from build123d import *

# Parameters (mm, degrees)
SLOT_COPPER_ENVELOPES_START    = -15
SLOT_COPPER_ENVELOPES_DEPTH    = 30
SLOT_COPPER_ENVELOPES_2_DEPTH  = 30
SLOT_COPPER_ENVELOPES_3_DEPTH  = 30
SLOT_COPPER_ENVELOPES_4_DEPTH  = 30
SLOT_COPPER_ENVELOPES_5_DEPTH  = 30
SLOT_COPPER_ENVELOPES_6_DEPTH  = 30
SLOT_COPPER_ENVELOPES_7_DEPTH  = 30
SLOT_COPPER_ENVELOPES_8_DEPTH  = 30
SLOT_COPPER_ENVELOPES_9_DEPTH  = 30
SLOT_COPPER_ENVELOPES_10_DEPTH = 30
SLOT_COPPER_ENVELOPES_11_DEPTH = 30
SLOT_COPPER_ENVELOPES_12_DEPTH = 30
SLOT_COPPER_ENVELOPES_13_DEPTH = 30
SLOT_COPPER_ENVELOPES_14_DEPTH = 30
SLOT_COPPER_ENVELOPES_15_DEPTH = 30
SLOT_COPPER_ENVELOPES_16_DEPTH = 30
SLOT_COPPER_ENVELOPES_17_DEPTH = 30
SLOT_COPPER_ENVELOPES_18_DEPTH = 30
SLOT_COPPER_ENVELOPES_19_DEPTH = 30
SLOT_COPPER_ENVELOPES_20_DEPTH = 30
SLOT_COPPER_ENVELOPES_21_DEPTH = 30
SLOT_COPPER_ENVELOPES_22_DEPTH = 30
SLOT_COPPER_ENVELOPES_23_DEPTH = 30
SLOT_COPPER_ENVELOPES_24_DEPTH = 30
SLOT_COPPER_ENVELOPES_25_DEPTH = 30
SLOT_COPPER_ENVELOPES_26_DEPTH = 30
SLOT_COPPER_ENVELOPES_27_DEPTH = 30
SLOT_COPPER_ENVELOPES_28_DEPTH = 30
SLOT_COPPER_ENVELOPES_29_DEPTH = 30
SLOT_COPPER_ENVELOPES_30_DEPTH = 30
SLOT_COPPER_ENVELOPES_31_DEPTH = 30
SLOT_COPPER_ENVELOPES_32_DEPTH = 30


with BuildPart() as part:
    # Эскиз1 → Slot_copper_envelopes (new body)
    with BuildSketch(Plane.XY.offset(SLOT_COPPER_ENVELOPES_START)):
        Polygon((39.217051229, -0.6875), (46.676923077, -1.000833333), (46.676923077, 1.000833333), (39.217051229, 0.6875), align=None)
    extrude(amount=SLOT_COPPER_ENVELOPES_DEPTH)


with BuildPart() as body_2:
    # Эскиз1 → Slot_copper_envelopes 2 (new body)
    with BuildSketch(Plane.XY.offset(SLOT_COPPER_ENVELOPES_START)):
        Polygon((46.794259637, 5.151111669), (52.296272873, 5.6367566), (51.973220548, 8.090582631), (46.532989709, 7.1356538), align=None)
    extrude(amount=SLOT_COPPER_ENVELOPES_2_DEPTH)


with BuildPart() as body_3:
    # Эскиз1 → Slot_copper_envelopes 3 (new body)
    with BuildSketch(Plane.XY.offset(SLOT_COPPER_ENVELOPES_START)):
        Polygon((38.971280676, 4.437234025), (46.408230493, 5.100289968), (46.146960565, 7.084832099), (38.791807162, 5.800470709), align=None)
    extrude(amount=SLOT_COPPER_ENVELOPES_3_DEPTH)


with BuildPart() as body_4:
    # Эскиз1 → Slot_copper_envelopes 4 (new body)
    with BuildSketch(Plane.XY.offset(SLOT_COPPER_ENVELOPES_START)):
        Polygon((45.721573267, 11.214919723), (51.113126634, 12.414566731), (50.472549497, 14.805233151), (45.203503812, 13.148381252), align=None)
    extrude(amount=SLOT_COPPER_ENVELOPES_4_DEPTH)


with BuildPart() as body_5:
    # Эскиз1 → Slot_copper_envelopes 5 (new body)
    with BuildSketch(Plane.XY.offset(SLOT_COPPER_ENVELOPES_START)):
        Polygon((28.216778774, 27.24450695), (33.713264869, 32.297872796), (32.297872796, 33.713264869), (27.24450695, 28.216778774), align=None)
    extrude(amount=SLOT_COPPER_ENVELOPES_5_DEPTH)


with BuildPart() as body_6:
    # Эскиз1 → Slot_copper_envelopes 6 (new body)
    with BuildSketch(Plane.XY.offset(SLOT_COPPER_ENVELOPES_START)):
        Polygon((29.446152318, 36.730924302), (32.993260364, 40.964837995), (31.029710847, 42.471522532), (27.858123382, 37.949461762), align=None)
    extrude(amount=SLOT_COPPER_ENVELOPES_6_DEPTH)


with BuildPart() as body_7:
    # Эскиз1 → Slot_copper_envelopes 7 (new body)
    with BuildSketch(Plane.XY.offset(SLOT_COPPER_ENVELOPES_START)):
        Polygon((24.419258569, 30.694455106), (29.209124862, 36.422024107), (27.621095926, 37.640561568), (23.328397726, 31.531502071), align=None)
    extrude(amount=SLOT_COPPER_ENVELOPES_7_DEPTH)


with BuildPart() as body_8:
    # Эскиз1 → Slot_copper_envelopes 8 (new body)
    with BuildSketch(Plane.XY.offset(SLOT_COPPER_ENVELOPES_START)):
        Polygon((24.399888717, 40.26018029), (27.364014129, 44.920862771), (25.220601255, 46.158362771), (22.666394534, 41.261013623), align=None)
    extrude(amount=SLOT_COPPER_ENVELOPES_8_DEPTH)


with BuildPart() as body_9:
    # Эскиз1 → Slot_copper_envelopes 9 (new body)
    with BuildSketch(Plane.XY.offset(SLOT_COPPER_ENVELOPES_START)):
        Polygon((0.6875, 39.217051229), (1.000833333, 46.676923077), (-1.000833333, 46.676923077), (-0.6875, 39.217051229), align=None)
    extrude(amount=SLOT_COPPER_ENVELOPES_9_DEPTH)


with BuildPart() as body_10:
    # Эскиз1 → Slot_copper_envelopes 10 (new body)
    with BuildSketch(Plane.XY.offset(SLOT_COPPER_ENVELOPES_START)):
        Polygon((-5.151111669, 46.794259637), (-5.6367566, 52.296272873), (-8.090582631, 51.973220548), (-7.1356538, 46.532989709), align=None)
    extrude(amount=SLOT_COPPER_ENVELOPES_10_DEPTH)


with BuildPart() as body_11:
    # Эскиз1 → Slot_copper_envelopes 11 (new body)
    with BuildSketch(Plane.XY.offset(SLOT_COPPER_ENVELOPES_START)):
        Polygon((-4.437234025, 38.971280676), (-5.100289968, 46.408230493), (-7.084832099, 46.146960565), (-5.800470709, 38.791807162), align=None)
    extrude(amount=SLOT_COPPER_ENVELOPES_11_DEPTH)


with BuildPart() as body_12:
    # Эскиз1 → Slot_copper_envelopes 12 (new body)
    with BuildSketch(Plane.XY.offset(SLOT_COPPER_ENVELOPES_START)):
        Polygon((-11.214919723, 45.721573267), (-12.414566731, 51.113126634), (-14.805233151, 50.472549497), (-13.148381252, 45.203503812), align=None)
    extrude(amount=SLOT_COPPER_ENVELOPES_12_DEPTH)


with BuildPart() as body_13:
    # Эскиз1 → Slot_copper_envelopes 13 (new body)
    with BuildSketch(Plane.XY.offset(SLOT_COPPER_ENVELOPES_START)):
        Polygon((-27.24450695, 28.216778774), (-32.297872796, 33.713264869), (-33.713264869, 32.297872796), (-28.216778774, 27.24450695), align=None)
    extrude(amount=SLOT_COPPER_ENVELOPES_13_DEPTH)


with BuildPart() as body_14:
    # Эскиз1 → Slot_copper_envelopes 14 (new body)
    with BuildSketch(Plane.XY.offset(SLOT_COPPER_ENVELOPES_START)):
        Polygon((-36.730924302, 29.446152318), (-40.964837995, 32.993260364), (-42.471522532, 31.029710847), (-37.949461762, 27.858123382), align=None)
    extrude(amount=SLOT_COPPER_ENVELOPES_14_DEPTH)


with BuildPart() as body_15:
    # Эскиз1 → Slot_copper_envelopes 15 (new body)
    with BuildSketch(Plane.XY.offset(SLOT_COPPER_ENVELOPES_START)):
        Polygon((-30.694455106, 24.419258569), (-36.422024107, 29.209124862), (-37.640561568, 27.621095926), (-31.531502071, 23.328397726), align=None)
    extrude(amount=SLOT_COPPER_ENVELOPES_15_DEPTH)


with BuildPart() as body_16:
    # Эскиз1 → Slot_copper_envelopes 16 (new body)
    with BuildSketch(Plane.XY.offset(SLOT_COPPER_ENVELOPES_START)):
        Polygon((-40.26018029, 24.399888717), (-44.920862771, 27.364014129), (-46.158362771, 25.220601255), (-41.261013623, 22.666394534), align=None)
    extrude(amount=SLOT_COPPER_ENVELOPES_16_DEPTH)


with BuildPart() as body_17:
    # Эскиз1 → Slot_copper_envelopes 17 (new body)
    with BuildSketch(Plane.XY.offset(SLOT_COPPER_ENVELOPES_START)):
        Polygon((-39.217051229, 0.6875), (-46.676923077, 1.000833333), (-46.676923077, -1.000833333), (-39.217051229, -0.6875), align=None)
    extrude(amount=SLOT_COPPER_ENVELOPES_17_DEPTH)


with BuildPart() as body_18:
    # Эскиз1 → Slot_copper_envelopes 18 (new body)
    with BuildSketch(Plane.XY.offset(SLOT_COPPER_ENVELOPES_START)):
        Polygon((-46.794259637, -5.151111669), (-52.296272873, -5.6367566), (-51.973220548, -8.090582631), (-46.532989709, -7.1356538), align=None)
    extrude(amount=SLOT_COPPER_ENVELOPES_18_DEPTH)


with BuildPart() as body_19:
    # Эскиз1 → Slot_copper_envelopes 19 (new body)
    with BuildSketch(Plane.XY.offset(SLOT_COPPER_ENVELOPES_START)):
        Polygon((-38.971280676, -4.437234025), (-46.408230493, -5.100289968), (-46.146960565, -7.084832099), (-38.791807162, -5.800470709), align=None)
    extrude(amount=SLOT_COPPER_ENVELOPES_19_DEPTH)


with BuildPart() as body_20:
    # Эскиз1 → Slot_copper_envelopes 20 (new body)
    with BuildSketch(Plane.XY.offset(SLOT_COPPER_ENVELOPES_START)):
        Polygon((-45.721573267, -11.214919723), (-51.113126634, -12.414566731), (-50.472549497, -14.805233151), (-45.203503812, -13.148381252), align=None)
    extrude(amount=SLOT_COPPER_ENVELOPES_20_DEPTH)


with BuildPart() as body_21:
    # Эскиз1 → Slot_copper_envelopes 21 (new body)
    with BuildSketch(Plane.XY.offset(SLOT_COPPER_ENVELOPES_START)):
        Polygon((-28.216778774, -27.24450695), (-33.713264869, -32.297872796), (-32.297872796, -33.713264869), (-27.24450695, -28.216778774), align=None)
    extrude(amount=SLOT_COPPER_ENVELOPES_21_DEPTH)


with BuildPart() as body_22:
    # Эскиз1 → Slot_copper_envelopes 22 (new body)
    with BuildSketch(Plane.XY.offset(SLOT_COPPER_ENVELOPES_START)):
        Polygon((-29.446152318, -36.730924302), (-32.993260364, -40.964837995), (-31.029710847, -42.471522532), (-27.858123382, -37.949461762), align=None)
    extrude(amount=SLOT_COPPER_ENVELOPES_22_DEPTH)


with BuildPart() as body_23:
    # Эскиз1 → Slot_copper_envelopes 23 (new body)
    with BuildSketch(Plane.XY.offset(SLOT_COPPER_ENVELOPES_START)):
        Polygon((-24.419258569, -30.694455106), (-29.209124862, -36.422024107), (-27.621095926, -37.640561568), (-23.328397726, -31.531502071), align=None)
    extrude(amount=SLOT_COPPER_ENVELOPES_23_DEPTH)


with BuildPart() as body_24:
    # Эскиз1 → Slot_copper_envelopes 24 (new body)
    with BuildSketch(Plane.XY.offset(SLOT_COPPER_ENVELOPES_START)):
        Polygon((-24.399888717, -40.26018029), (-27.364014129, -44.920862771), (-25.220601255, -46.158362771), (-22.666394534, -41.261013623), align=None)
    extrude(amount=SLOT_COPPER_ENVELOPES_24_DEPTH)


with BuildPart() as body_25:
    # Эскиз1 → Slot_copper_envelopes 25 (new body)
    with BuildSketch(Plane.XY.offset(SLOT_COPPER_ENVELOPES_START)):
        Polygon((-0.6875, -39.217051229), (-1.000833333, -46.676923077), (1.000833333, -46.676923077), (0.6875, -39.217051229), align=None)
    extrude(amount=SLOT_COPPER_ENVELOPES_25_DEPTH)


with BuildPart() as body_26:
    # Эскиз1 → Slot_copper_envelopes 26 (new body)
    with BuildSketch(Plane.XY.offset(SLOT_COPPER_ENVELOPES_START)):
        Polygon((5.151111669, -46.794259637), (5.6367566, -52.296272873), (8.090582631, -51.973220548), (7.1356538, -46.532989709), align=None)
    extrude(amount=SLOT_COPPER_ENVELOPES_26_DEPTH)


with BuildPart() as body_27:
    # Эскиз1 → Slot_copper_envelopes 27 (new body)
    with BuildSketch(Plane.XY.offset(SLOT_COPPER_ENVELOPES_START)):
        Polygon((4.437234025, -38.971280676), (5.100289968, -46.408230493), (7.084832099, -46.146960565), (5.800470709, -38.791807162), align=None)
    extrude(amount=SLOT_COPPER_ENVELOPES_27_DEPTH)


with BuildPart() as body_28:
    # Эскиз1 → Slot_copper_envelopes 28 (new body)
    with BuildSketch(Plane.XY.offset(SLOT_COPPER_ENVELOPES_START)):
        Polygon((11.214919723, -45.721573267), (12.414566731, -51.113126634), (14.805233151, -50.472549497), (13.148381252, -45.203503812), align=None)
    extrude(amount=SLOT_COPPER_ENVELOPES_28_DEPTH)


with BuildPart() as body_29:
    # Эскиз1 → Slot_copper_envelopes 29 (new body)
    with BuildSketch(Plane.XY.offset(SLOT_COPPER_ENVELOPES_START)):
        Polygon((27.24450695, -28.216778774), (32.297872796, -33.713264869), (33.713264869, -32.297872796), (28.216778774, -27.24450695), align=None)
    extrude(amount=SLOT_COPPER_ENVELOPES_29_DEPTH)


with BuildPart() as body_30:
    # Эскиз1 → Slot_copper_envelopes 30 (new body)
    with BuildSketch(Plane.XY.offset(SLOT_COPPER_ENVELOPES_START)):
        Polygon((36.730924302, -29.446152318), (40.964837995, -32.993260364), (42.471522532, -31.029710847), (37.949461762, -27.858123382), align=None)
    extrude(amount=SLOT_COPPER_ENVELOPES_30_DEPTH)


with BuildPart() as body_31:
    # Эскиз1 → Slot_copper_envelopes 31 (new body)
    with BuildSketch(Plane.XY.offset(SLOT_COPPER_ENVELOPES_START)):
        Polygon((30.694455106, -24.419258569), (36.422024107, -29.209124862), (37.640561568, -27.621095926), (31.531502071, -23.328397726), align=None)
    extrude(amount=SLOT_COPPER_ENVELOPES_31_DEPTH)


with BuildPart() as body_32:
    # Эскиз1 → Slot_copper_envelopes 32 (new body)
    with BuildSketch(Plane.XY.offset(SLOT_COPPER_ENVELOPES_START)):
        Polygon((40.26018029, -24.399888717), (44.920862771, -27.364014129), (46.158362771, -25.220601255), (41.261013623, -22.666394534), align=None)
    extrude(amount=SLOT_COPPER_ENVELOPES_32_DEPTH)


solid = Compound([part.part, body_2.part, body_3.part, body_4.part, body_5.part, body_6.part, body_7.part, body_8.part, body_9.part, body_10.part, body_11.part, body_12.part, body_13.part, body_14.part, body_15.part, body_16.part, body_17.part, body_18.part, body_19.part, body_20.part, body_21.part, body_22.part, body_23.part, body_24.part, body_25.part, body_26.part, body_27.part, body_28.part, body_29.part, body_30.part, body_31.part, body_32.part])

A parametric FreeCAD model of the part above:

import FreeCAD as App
import Part
import Sketcher

V = App.Vector
Q = App.Units.Quantity

doc = App.newDocument("Part")
body = doc.addObject("PartDesign::Body", "Body")

sketch1 = body.newObject("Sketcher::SketchObject", "Sketch")
sketch1.AttachmentSupport = (doc.getObject("XY_Plane"), [""])
sketch1.MapMode = "FlatFace"
sketch1.AttachmentOffset = App.Placement(V(0, 0, -15), App.Rotation())
sketch1.addGeometry([
    Part.LineSegment(V(39.2, -0.7, 0), V(46.7, -1, 0)),
    Part.LineSegment(V(46.7, -1, 0), V(46.7, 1, 0)),
    Part.LineSegment(V(46.7, 1, 0), V(39.2, 0.7, 0)),
    Part.LineSegment(V(39.2, 0.7, 0), V(39.2, -0.7, 0)),
], False)
sketch1.addConstraint([
    Sketcher.Constraint("Coincident", 0, 2, 1, 1),
    Sketcher.Constraint("Coincident", 1, 2, 2, 1),
    Sketcher.Constraint("Coincident", 2, 2, 3, 1),
    Sketcher.Constraint("Coincident", 3, 2, 0, 1),
    Sketcher.Constraint("Vertical", 1),
    Sketcher.Constraint("Vertical", 3),
    Sketcher.Constraint("Equal", 0, 2),
    Sketcher.Constraint("DistanceY", 3, 2, 3, 1, 1.375),
    Sketcher.Constraint("DistanceY", -1, 1, 2, 2, 0.6875),
    Sketcher.Constraint("Distance", 0, 7.466449),
    Sketcher.Constraint("DistanceY", 1, 1, 1, 2, 2.001667),
    Sketcher.Constraint("DistanceX", -1, 1, 2, 2, 39.217051),
])
pad1 = body.newObject("PartDesign::Pad", "Pad")
pad1.Profile = sketch1
pad1.Length = 30
body2 = doc.addObject("PartDesign::Body", "Body001")

sketch2 = body2.newObject("Sketcher::SketchObject", "Sketch001")
sketch2.AttachmentSupport = (doc.getObject("XY_Plane001"), [""])
sketch2.MapMode = "FlatFace"
sketch2.AttachmentOffset = App.Placement(V(0, 0, -15), App.Rotation())
sketch2.addGeometry([
    Part.LineSegment(V(46.8, 5.2, 0), V(52.3, 5.6, 0)),
    Part.LineSegment(V(52.3, 5.6, 0), V(52, 8.1, 0)),
    Part.LineSegment(V(52, 8.1, 0), V(46.5, 7.1, 0)),
    Part.LineSegment(V(46.5, 7.1, 0), V(46.8, 5.2, 0)),
], False)
sketch2.addConstraint([
    Sketcher.Constraint("Coincident", 0, 2, 1, 1),
    Sketcher.Constraint("Coincident", 1, 2, 2, 1),
    Sketcher.Constraint("Coincident", 2, 2, 3, 1),
    Sketcher.Constraint("Coincident", 3, 2, 0, 1),
    Sketcher.Constraint("Parallel", 1, 3),
    Sketcher.Constraint("Equal", 0, 2),
    Sketcher.Constraint("Angle", 1, Q("97.5 deg")),
    Sketcher.Constraint("Distance", 1, 2.475),
    Sketcher.Constraint("DistanceX", -1, 1, 1, 2, 51.973221),
    Sketcher.Constraint("DistanceX", -1, 1, 2, 2, 46.53299),
    Sketcher.Constraint("DistanceX", -1, 1, 3, 2, 46.79426),
    Sketcher.Constraint("DistanceY", -1, 1, 3, 2, 5.151112),
])
pad2 = body2.newObject("PartDesign::Pad", "Pad001")
pad2.Profile = sketch2
pad2.Length = 30
body3 = doc.addObject("PartDesign::Body", "Body002")

sketch3 = body3.newObject("Sketcher::SketchObject", "Sketch002")
sketch3.AttachmentSupport = (doc.getObject("XY_Plane002"), [""])
sketch3.MapMode = "FlatFace"
sketch3.AttachmentOffset = App.Placement(V(0, 0, -15), App.Rotation())
sketch3.addGeometry([
    Part.LineSegment(V(39, 4.4, 0), V(46.4, 5.1, 0)),
    Part.LineSegment(V(46.4, 5.1, 0), V(46.1, 7.1, 0)),
    Part.LineSegment(V(46.1, 7.1, 0), V(38.8, 5.8, 0)),
    Part.LineSegment(V(38.8, 5.8, 0), V(39, 4.4, 0)),
], False)
sketch3.addConstraint([
    Sketcher.Constraint("Coincident", 0, 2, 1, 1),
    Sketcher.Constraint("Coincident", 1, 2, 2, 1),
    Sketcher.Constraint("Coincident", 2, 2, 3, 1),
    Sketcher.Constraint("Coincident", 3, 2, 0, 1),
    Sketcher.Constraint("Parallel", 1, 3),
    Sketcher.Constraint("Equal", 0, 2),
    Sketcher.Constraint("Angle", 1, Q("97.5 deg")),
    Sketcher.Constraint("Distance", 3, 1.375),
    Sketcher.Constraint("DistanceY", 3, 2, 1, 2, 2.647598),
    Sketcher.Constraint("Distance", 0, 7.466449),
    Sketcher.Constraint("DistanceX", -1, 1, 0, 2, 46.40823),
    Sketcher.Constraint("DistanceY", -1, 1, 0, 2, 5.10029),
])
pad3 = body3.newObject("PartDesign::Pad", "Pad002")
pad3.Profile = sketch3
pad3.Length = 30
body4 = doc.addObject("PartDesign::Body", "Body003")

sketch4 = body4.newObject("Sketcher::SketchObject", "Sketch003")
sketch4.AttachmentSupport = (doc.getObject("XY_Plane003"), [""])
sketch4.MapMode = "FlatFace"
sketch4.AttachmentOffset = App.Placement(V(0, 0, -15), App.Rotation())
sketch4.addGeometry([
    Part.LineSegment(V(45.7, 11.2, 0), V(51.1, 12.4, 0)),
    Part.LineSegment(V(51.1, 12.4, 0), V(50.5, 14.8, 0)),
    Part.LineSegment(V(50.5, 14.8, 0), V(45.2, 13.1, 0)),
    Part.LineSegment(V(45.2, 13.1, 0), V(45.7, 11.2, 0)),
], False)
sketch4.addConstraint([
    Sketcher.Constraint("Coincident", 0, 2, 1, 1),
    Sketcher.Constraint("Coincident", 1, 2, 2, 1),
    Sketcher.Constraint("Coincident", 2, 2, 3, 1),
    Sketcher.Constraint("Coincident", 3, 2, 0, 1),
    Sketcher.Constraint("Parallel", 1, 3),
    Sketcher.Constraint("Equal", 0, 2),
    Sketcher.Constraint("Angle", 1, Q("105 deg")),
    Sketcher.Constraint("Distance", 1, 2.475),
    Sketcher.Constraint("DistanceX", -1, 1, 1, 2, 50.472549),
    Sketcher.Constraint("DistanceY", -1, 1, 2, 2, 13.148381),
    Sketcher.Constraint("DistanceY", -1, 1, 3, 2, 11.21492),
    Sketcher.Constraint("DistanceY", 2, 2, 1, 2, 1.656852),
])
pad4 = body4.newObject("PartDesign::Pad", "Pad003")
pad4.Profile = sketch4
pad4.Length = 30
body5 = doc.addObject("PartDesign::Body", "Body004")

sketch5 = body5.newObject("Sketcher::SketchObject", "Sketch004")
sketch5.AttachmentSupport = (doc.getObject("XY_Plane004"), [""])
sketch5.MapMode = "FlatFace"
sketch5.AttachmentOffset = App.Placement(V(0, 0, -15), App.Rotation())
sketch5.addGeometry([
    Part.LineSegment(V(28.2, 27.2, 0), V(33.7, 32.3, 0)),
    Part.LineSegment(V(33.7, 32.3, 0), V(32.3, 33.7, 0)),
    Part.LineSegment(V(32.3, 33.7, 0), V(27.2, 28.2, 0)),
    Part.LineSegment(V(27.2, 28.2, 0), V(28.2, 27.2, 0)),
], False)
sketch5.addConstraint([
    Sketcher.Constraint("Coincident", 0, 2, 1, 1),
    Sketcher.Constraint("Coincident", 1, 2, 2, 1),
    Sketcher.Constraint("Coincident", 2, 2, 3, 1),
    Sketcher.Constraint("Coincident", 3, 2, 0, 1),
    Sketcher.Constraint("Parallel", 1, 3),
    Sketcher.Constraint("Equal", 0, 2),
    Sketcher.Constraint("Angle", 1, Q("135 deg")),
    Sketcher.Constraint("Distance", 3, 1.375),
    Sketcher.Constraint("Distance", 0, 7.466449),
    Sketcher.Constraint("DistanceY", -1, 1, 2, 2, 28.216779),
    Sketcher.Constraint("DistanceX", -1, 1, 3, 2, 28.216779),
    Sketcher.Constraint("Distance", 1, 2.001667),
])
pad5 = body5.newObject("PartDesign::Pad", "Pad004")
pad5.Profile = sketch5
pad5.Length = 30
body6 = doc.addObject("PartDesign::Body", "Body005")

sketch6 = body6.newObject("Sketcher::SketchObject", "Sketch005")
sketch6.AttachmentSupport = (doc.getObject("XY_Plane005"), [""])
sketch6.MapMode = "FlatFace"
sketch6.AttachmentOffset = App.Placement(V(0, 0, -15), App.Rotation())
sketch6.addGeometry([
    Part.LineSegment(V(29.4, 36.7, 0), V(33, 41, 0)),
    Part.LineSegment(V(33, 41, 0), V(31, 42.5, 0)),
    Part.LineSegment(V(31, 42.5, 0), V(27.9, 37.9, 0)),
    Part.LineSegment(V(27.9, 37.9, 0), V(29.4, 36.7, 0)),
], False)
sketch6.addConstraint([
    Sketcher.Constraint("Coincident", 0, 2, 1, 1),
    Sketcher.Constraint("Coincident", 1, 2, 2, 1),
    Sketcher.Constraint("Coincident", 2, 2, 3, 1),
    Sketcher.Constraint("Coincident", 3, 2, 0, 1),
    Sketcher.Constraint("Parallel", 1, 3),
    Sketcher.Constraint("Equal", 0, 2),
    Sketcher.Constraint("Angle", 1, Q("142.5 deg")),
    Sketcher.Constraint("Distance", 1, 2.475),
    Sketcher.Constraint("DistanceY", 3, 2, 1, 2, 5.740598),
    Sketcher.Constraint("DistanceX", -1, 1, 0, 2, 32.99326),
    Sketcher.Constraint("DistanceY", -1, 1, 2, 2, 37.949462),
    Sketcher.Constraint("DistanceY", 2, 2, 1, 2, 4.522061),
])
pad6 = body6.newObject("PartDesign::Pad", "Pad005")
pad6.Profile = sketch6
pad6.Length = 30
body7 = doc.addObject("PartDesign::Body", "Body006")

sketch7 = body7.newObject("Sketcher::SketchObject", "Sketch006")
sketch7.AttachmentSupport = (doc.getObject("XY_Plane006"), [""])
sketch7.MapMode = "FlatFace"
sketch7.AttachmentOffset = App.Placement(V(0, 0, -15), App.Rotation())
sketch7.addGeometry([
    Part.LineSegment(V(24.4, 30.7, 0), V(29.2, 36.4, 0)),
    Part.LineSegment(V(29.2, 36.4, 0), V(27.6, 37.6, 0)),
    Part.LineSegment(V(27.6, 37.6, 0), V(23.3, 31.5, 0)),
    Part.LineSegment(V(23.3, 31.5, 0), V(24.4, 30.7, 0)),
], False)
sketch7.addConstraint([
    Sketcher.Constraint("Coincident", 0, 2, 1, 1),
    Sketcher.Constraint("Coincident", 1, 2, 2, 1),
    Sketcher.Constraint("Coincident", 2, 2, 3, 1),
    Sketcher.Constraint("Coincident", 3, 2, 0, 1),
    Sketcher.Constraint("Parallel", 1, 3),
    Sketcher.Constraint("Equal", 0, 2),
    Sketcher.Constraint("Angle", 1, Q("142.5 deg")),
    Sketcher.Constraint("Distance", 3, 1.375),
    Sketcher.Constraint("DistanceX", 2, 2, 1, 2, 4.292698),
    Sketcher.Constraint("Distance", 0, 7.466449),
    Sketcher.Constraint("DistanceY", -1, 1, 1, 2, 37.640562),
    Sketcher.Constraint("DistanceX", -1, 1, 3, 2, 24.419259),
])
pad7 = body7.newObject("PartDesign::Pad", "Pad006")
pad7.Profile = sketch7
pad7.Length = 30
body8 = doc.addObject("PartDesign::Body", "Body007")

sketch8 = body8.newObject("Sketcher::SketchObject", "Sketch007")
sketch8.AttachmentSupport = (doc.getObject("XY_Plane007"), [""])
sketch8.MapMode = "FlatFace"
sketch8.AttachmentOffset = App.Placement(V(0, 0, -15), App.Rotation())
sketch8.addGeometry([
    Part.LineSegment(V(24.4, 40.3, 0), V(27.4, 44.9, 0)),
    Part.LineSegment(V(27.4, 44.9, 0), V(25.2, 46.2, 0)),
    Part.LineSegment(V(25.2, 46.2, 0), V(22.7, 41.3, 0)),
    Part.LineSegment(V(22.7, 41.3, 0), V(24.4, 40.3, 0)),
], False)
sketch8.addConstraint([
    Sketcher.Constraint("Coincident", 0, 2, 1, 1),
    Sketcher.Constraint("Coincident", 1, 2, 2, 1),
    Sketcher.Constraint("Coincident", 2, 2, 3, 1),
    Sketcher.Constraint("Coincident", 3, 2, 0, 1),
    Sketcher.Constraint("Parallel", 1, 3),
    Sketcher.Constraint("Equal", 0, 2),
    Sketcher.Constraint("Angle", 1, Q("150 deg")),
    Sketcher.Constraint("Distance", 1, 2.475),
    Sketcher.Constraint("DistanceX", -1, 1, 1, 2, 25.220601),
    Sketcher.Constraint("DistanceX", -1, 1, 3, 2, 24.399889),
    Sketcher.Constraint("DistanceY", -1, 1, 3, 2, 40.26018),
    Sketcher.Constraint("DistanceY", 2, 2, 1, 2, 4.897349),
])
pad8 = body8.newObject("PartDesign::Pad", "Pad007")
pad8.Profile = sketch8
pad8.Length = 30
body9 = doc.addObject("PartDesign::Body", "Body008")

sketch9 = body9.newObject("Sketcher::SketchObject", "Sketch008")
sketch9.AttachmentSupport = (doc.getObject("XY_Plane008"), [""])
sketch9.MapMode = "FlatFace"
sketch9.AttachmentOffset = App.Placement(V(0, 0, -15), App.Rotation())
sketch9.addGeometry([
    Part.LineSegment(V(0.7, 39.2, 0), V(1, 46.7, 0)),
    Part.LineSegment(V(1, 46.7, 0), V(-1, 46.7, 0)),
    Part.LineSegment(V(-1, 46.7, 0), V(-0.7, 39.2, 0)),
    Part.LineSegment(V(-0.7, 39.2, 0), V(0.7, 39.2, 0)),
], False)
sketch9.addConstraint([
    Sketcher.Constraint("Coincident", 0, 2, 1, 1),
    Sketcher.Constraint("Coincident", 1, 2, 2, 1),
    Sketcher.Constraint("Coincident", 2, 2, 3, 1),
    Sketcher.Constraint("Coincident", 3, 2, 0, 1),
    Sketcher.Constraint("Horizontal", 1),
    Sketcher.Constraint("Horizontal", 3),
    Sketcher.Constraint("Equal", 0, 2),
    Sketcher.Constraint("DistanceX", 3, 1, 3, 2, 1.375),
    Sketcher.Constraint("DistanceX", 2, 2, -1, 1, 0.6875),
    Sketcher.Constraint("Distance", 0, 7.466449),
    Sketcher.Constraint("DistanceX", 1, 2, 1, 1, 2.001667),
    Sketcher.Constraint("DistanceY", -1, 1, 2, 2, 39.217051),
])
pad9 = body9.newObject("PartDesign::Pad", "Pad008")
pad9.Profile = sketch9
pad9.Length = 30
body10 = doc.addObject("PartDesign::Body", "Body009")

sketch10 = body10.newObject("Sketcher::SketchObject", "Sketch009")
sketch10.AttachmentSupport = (doc.getObject("XY_Plane009"), [""])
sketch10.MapMode = "FlatFace"
sketch10.AttachmentOffset = App.Placement(V(0, 0, -15), App.Rotation())
sketch10.addGeometry([
    Part.LineSegment(V(-5.2, 46.8, 0), V(-5.6, 52.3, 0)),
    Part.LineSegment(V(-5.6, 52.3, 0), V(-8.1, 52, 0)),
    Part.LineSegment(V(-8.1, 52, 0), V(-7.1, 46.5, 0)),
    Part.LineSegment(V(-7.1, 46.5, 0), V(-5.2, 46.8, 0)),
], False)
sketch10.addConstraint([
    Sketcher.Constraint("Coincident", 0, 2, 1, 1),
    Sketcher.Constraint("Coincident", 1, 2, 2, 1),
    Sketcher.Constraint("Coincident", 2, 2, 3, 1),
    Sketcher.Constraint("Coincident", 3, 2, 0, 1),
    Sketcher.Constraint("Parallel", 1, 3),
    Sketcher.Constraint("Equal", 0, 2),
    Sketcher.Constraint("Angle", 1, Q("-172.5 deg")),
    Sketcher.Constraint("Distance", 1, 2.475),
    Sketcher.Constraint("DistanceY", -1, 1, 1, 2, 51.973221),
    Sketcher.Constraint("DistanceY", -1, 1, 2, 2, 46.53299),
    Sketcher.Constraint("DistanceX", 3, 2, -1, 1, 5.151112),
    Sketcher.Constraint("DistanceY", -1, 1, 3, 2, 46.79426),
])
pad10 = body10.newObject("PartDesign::Pad", "Pad009")
pad10.Profile = sketch10
pad10.Length = 30
body11 = doc.addObject("PartDesign::Body", "Body010")

sketch11 = body11.newObject("Sketcher::SketchObject", "Sketch010")
sketch11.AttachmentSupport = (doc.getObject("XY_Plane010"), [""])
sketch11.MapMode = "FlatFace"
sketch11.AttachmentOffset = App.Placement(V(0, 0, -15), App.Rotation())
sketch11.addGeometry([
    Part.LineSegment(V(-4.4, 39, 0), V(-5.1, 46.4, 0)),
    Part.LineSegment(V(-5.1, 46.4, 0), V(-7.1, 46.1, 0)),
    Part.LineSegment(V(-7.1, 46.1, 0), V(-5.8, 38.8, 0)),
    Part.LineSegment(V(-5.8, 38.8, 0), V(-4.4, 39, 0)),
], False)
sketch11.addConstraint([
    Sketcher.Constraint("Coincident", 0, 2, 1, 1),
    Sketcher.Constraint("Coincident", 1, 2, 2, 1),
    Sketcher.Constraint("Coincident", 2, 2, 3, 1),
    Sketcher.Constraint("Coincident", 3, 2, 0, 1),
    Sketcher.Constraint("Parallel", 1, 3),
    Sketcher.Constraint("Equal", 0, 2),
    Sketcher.Constraint("Angle", 1, Q("-172.5 deg")),
    Sketcher.Constraint("Distance", 3, 1.375),
    Sketcher.Constraint("DistanceX", 1, 2, 3, 2, 2.647598),
    Sketcher.Constraint("Distance", 0, 7.466449),
    Sketcher.Constraint("DistanceX", 0, 2, -1, 1, 5.10029),
    Sketcher.Constraint("DistanceY", -1, 1, 0, 2, 46.40823),
])
pad11 = body11.newObject("PartDesign::Pad", "Pad010")
pad11.Profile = sketch11
pad11.Length = 30
body12 = doc.addObject("PartDesign::Body", "Body011")

sketch12 = body12.newObject("Sketcher::SketchObject", "Sketch011")
sketch12.AttachmentSupport = (doc.getObject("XY_Plane011"), [""])
sketch12.MapMode = "FlatFace"
sketch12.AttachmentOffset = App.Placement(V(0, 0, -15), App.Rotation())
sketch12.addGeometry([
    Part.LineSegment(V(-11.2, 45.7, 0), V(-12.4, 51.1, 0)),
    Part.LineSegment(V(-12.4, 51.1, 0), V(-14.8, 50.5, 0)),
    Part.LineSegment(V(-14.8, 50.5, 0), V(-13.1, 45.2, 0)),
    Part.LineSegment(V(-13.1, 45.2, 0), V(-11.2, 45.7, 0)),
], False)
sketch12.addConstraint([
    Sketcher.Constraint("Coincident", 0, 2, 1, 1),
    Sketcher.Constraint("Coincident", 1, 2, 2, 1),
    Sketcher.Constraint("Coincident", 2, 2, 3, 1),
    Sketcher.Constraint("Coincident", 3, 2, 0, 1),
    Sketcher.Constraint("Parallel", 1, 3),
    Sketcher.Constraint("Equal", 0, 2),
    Sketcher.Constraint("Angle", 1, Q("-165 deg")),
    Sketcher.Constraint("Distance", 1, 2.475),
    Sketcher.Constraint("DistanceY", -1, 1, 1, 2, 50.472549),
    Sketcher.Constraint("DistanceX", 2, 2, -1, 1, 13.148381),
    Sketcher.Constraint("DistanceX", 3, 2, -1, 1, 11.21492),
    Sketcher.Constraint("DistanceX", 1, 2, 2, 2, 1.656852),
])
pad12 = body12.newObject("PartDesign::Pad", "Pad011")
pad12.Profile = sketch12
pad12.Length = 30
body13 = doc.addObject("PartDesign::Body", "Body012")

sketch13 = body13.newObject("Sketcher::SketchObject", "Sketch012")
sketch13.AttachmentSupport = (doc.getObject("XY_Plane012"), [""])
sketch13.MapMode = "FlatFace"
sketch13.AttachmentOffset = App.Placement(V(0, 0, -15), App.Rotation())
sketch13.addGeometry([
    Part.LineSegment(V(-27.2, 28.2, 0), V(-32.3, 33.7, 0)),
    Part.LineSegment(V(-32.3, 33.7, 0), V(-33.7, 32.3, 0)),
    Part.LineSegment(V(-33.7, 32.3, 0), V(-28.2, 27.2, 0)),
    Part.LineSegment(V(-28.2, 27.2, 0), V(-27.2, 28.2, 0)),
], False)
sketch13.addConstraint([
    Sketcher.Constraint("Coincident", 0, 2, 1, 1),
    Sketcher.Constraint("Coincident", 1, 2, 2, 1),
    Sketcher.Constraint("Coincident", 2, 2, 3, 1),
    Sketcher.Constraint("Coincident", 3, 2, 0, 1),
    Sketcher.Constraint("Parallel", 1, 3),
    Sketcher.Constraint("Equal", 0, 2),
    Sketcher.Constraint("Angle", 1, Q("-135 deg")),
    Sketcher.Constraint("Distance", 3, 1.375),
    Sketcher.Constraint("Distance", 0, 7.466449),
    Sketcher.Constraint("DistanceX", 2, 2, -1, 1, 28.216779),
    Sketcher.Constraint("DistanceY", -1, 1, 3, 2, 28.216779),
    Sketcher.Constraint("Distance", 1, 2.001667),
])
pad13 = body13.newObject("PartDesign::Pad", "Pad012")
pad13.Profile = sketch13
pad13.Length = 30
body14 = doc.addObject("PartDesign::Body", "Body013")

sketch14 = body14.newObject("Sketcher::SketchObject", "Sketch013")
sketch14.AttachmentSupport = (doc.getObject("XY_Plane013"), [""])
sketch14.MapMode = "FlatFace"
sketch14.AttachmentOffset = App.Placement(V(0, 0, -15), App.Rotation())
sketch14.addGeometry([
    Part.LineSegment(V(-36.7, 29.4, 0), V(-41, 33, 0)),
    Part.LineSegment(V(-41, 33, 0), V(-42.5, 31, 0)),
    Part.LineSegment(V(-42.5, 31, 0), V(-37.9, 27.9, 0)),
    Part.LineSegment(V(-37.9, 27.9, 0), V(-36.7, 29.4, 0)),
], False)
sketch14.addConstraint([
    Sketcher.Constraint("Coincident", 0, 2, 1, 1),
    Sketcher.Constraint("Coincident", 1, 2, 2, 1),
    Sketcher.Constraint("Coincident", 2, 2, 3, 1),
    Sketcher.Constraint("Coincident", 3, 2, 0, 1),
    Sketcher.Constraint("Parallel", 1, 3),
    Sketcher.Constraint("Equal", 0, 2),
    Sketcher.Constraint("Angle", 1, Q("-127.5 deg")),
    Sketcher.Constraint("Distance", 1, 2.475),
    Sketcher.Constraint("DistanceX", 1, 2, 3, 2, 5.740598),
    Sketcher.Constraint("DistanceY", -1, 1, 0, 2, 32.99326),
    Sketcher.Constraint("DistanceX", 2, 2, -1, 1, 37.949462),
    Sketcher.Constraint("DistanceX", 1, 2, 2, 2, 4.522061),
])
pad14 = body14.newObject("PartDesign::Pad", "Pad013")
pad14.Profile = sketch14
pad14.Length = 30
body15 = doc.addObject("PartDesign::Body", "Body014")

sketch15 = body15.newObject("Sketcher::SketchObject", "Sketch014")
sketch15.AttachmentSupport = (doc.getObject("XY_Plane014"), [""])
sketch15.MapMode = "FlatFace"
sketch15.AttachmentOffset = App.Placement(V(0, 0, -15), App.Rotation())
sketch15.addGeometry([
    Part.LineSegment(V(-30.7, 24.4, 0), V(-36.4, 29.2, 0)),
    Part.LineSegment(V(-36.4, 29.2, 0), V(-37.6, 27.6, 0)),
    Part.LineSegment(V(-37.6, 27.6, 0), V(-31.5, 23.3, 0)),
    Part.LineSegment(V(-31.5, 23.3, 0), V(-30.7, 24.4, 0)),
], False)
sketch15.addConstraint([
    Sketcher.Constraint("Coincident", 0, 2, 1, 1),
    Sketcher.Constraint("Coincident", 1, 2, 2, 1),
    Sketcher.Constraint("Coincident", 2, 2, 3, 1),
    Sketcher.Constraint("Coincident", 3, 2, 0, 1),
    Sketcher.Constraint("Parallel", 1, 3),
    Sketcher.Constraint("Equal", 0, 2),
    Sketcher.Constraint("Angle", 1, Q("-127.5 deg")),
    Sketcher.Constraint("Distance", 3, 1.375),
    Sketcher.Constraint("DistanceY", 2, 2, 1, 2, 4.292698),
    Sketcher.Constraint("Distance", 0, 7.466449),
    Sketcher.Constraint("DistanceX", 1, 2, -1, 1, 37.640562),
    Sketcher.Constraint("DistanceY", -1, 1, 3, 2, 24.419259),
])
pad15 = body15.newObject("PartDesign::Pad", "Pad014")
pad15.Profile = sketch15
pad15.Length = 30
body16 = doc.addObject("PartDesign::Body", "Body015")

sketch16 = body16.newObject("Sketcher::SketchObject", "Sketch015")
sketch16.AttachmentSupport = (doc.getObject("XY_Plane015"), [""])
sketch16.MapMode = "FlatFace"
sketch16.AttachmentOffset = App.Placement(V(0, 0, -15), App.Rotation())
sketch16.addGeometry([
    Part.LineSegment(V(-40.3, 24.4, 0), V(-44.9, 27.4, 0)),
    Part.LineSegment(V(-44.9, 27.4, 0), V(-46.2, 25.2, 0)),
    Part.LineSegment(V(-46.2, 25.2, 0), V(-41.3, 22.7, 0)),
    Part.LineSegment(V(-41.3, 22.7, 0), V(-40.3, 24.4, 0)),
], False)
sketch16.addConstraint([
    Sketcher.Constraint("Coincident", 0, 2, 1, 1),
    Sketcher.Constraint("Coincident", 1, 2, 2, 1),
    Sketcher.Constraint("Coincident", 2, 2, 3, 1),
    Sketcher.Constraint("Coincident", 3, 2, 0, 1),
    Sketcher.Constraint("Parallel", 1, 3),
    Sketcher.Constraint("Equal", 0, 2),
    Sketcher.Constraint("Angle", 1, Q("-120 deg")),
    Sketcher.Constraint("Distance", 1, 2.475),
    Sketcher.Constraint("DistanceY", -1, 1, 1, 2, 25.220601),
    Sketcher.Constraint("DistanceX", 3, 2, -1, 1, 40.26018),
    Sketcher.Constraint("DistanceY", -1, 1, 3, 2, 24.399889),
    Sketcher.Constraint("DistanceX", 1, 2, 2, 2, 4.897349),
])
pad16 = body16.newObject("PartDesign::Pad", "Pad015")
pad16.Profile = sketch16
pad16.Length = 30
body17 = doc.addObject("PartDesign::Body", "Body016")

sketch17 = body17.newObject("Sketcher::SketchObject", "Sketch016")
sketch17.AttachmentSupport = (doc.getObject("XY_Plane016"), [""])
sketch17.MapMode = "FlatFace"
sketch17.AttachmentOffset = App.Placement(V(0, 0, -15), App.Rotation())
sketch17.addGeometry([
    Part.LineSegment(V(-39.2, 0.7, 0), V(-46.7, 1, 0)),
    Part.LineSegment(V(-46.7, 1, 0), V(-46.7, -1, 0)),
    Part.LineSegment(V(-46.7, -1, 0), V(-39.2, -0.7, 0)),
    Part.LineSegment(V(-39.2, -0.7, 0), V(-39.2, 0.7, 0)),
], False)
sketch17.addConstraint([
    Sketcher.Constraint("Coincident", 0, 2, 1, 1),
    Sketcher.Constraint("Coincident", 1, 2, 2, 1),
    Sketcher.Constraint("Coincident", 2, 2, 3, 1),
    Sketcher.Constraint("Coincident", 3, 2, 0, 1),
    Sketcher.Constraint("Vertical", 1),
    Sketcher.Constraint("Vertical", 3),
    Sketcher.Constraint("Equal", 0, 2),
    Sketcher.Constraint("DistanceY", 3, 1, 3, 2, 1.375),
    Sketcher.Constraint("DistanceY", 2, 2, -1, 1, 0.6875),
    Sketcher.Constraint("Distance", 0, 7.466449),
    Sketcher.Constraint("DistanceY", 1, 2, 1, 1, 2.001667),
    Sketcher.Constraint("DistanceX", 2, 2, -1, 1, 39.217051),
])
pad17 = body17.newObject("PartDesign::Pad", "Pad016")
pad17.Profile = sketch17
pad17.Length = 30
body18 = doc.addObject("PartDesign::Body", "Body017")

sketch18 = body18.newObject("Sketcher::SketchObject", "Sketch017")
sketch18.AttachmentSupport = (doc.getObject("XY_Plane017"), [""])
sketch18.MapMode = "FlatFace"
sketch18.AttachmentOffset = App.Placement(V(0, 0, -15), App.Rotation())
sketch18.addGeometry([
    Part.LineSegment(V(-46.8, -5.2, 0), V(-52.3, -5.6, 0)),
    Part.LineSegment(V(-52.3, -5.6, 0), V(-52, -8.1, 0)),
    Part.LineSegment(V(-52, -8.1, 0), V(-46.5, -7.1, 0)),
    Part.LineSegment(V(-46.5, -7.1, 0), V(-46.8, -5.2, 0)),
], False)
sketch18.addConstraint([
    Sketcher.Constraint("Coincident", 0, 2, 1, 1),
    Sketcher.Constraint("Coincident", 1, 2, 2, 1),
    Sketcher.Constraint("Coincident", 2, 2, 3, 1),
    Sketcher.Constraint("Coincident", 3, 2, 0, 1),
    Sketcher.Constraint("Parallel", 1, 3),
    Sketcher.Constraint("Equal", 0, 2),
    Sketcher.Constraint("Angle", 1, Q("-82.5 deg")),
    Sketcher.Constraint("Distance", 1, 2.475),
    Sketcher.Constraint("DistanceX", 1, 2, -1, 1, 51.973221),
    Sketcher.Constraint("DistanceX", 2, 2, -1, 1, 46.53299),
    Sketcher.Constraint("DistanceX", 3, 2, -1, 1, 46.79426),
    Sketcher.Constraint("DistanceY", 3, 2, -1, 1, 5.151112),
])
pad18 = body18.newObject("PartDesign::Pad", "Pad017")
pad18.Profile = sketch18
pad18.Length = 30
body19 = doc.addObject("PartDesign::Body", "Body018")

sketch19 = body19.newObject("Sketcher::SketchObject", "Sketch018")
sketch19.AttachmentSupport = (doc.getObject("XY_Plane018"), [""])
sketch19.MapMode = "FlatFace"
sketch19.AttachmentOffset = App.Placement(V(0, 0, -15), App.Rotation())
sketch19.addGeometry([
    Part.LineSegment(V(-39, -4.4, 0), V(-46.4, -5.1, 0)),
    Part.LineSegment(V(-46.4, -5.1, 0), V(-46.1, -7.1, 0)),
    Part.LineSegment(V(-46.1, -7.1, 0), V(-38.8, -5.8, 0)),
    Part.LineSegment(V(-38.8, -5.8, 0), V(-39, -4.4, 0)),
], False)
sketch19.addConstraint([
    Sketcher.Constraint("Coincident", 0, 2, 1, 1),
    Sketcher.Constraint("Coincident", 1, 2, 2, 1),
    Sketcher.Constraint("Coincident", 2, 2, 3, 1),
    Sketcher.Constraint("Coincident", 3, 2, 0, 1),
    Sketcher.Constraint("Parallel", 1, 3),
    Sketcher.Constraint("Equal", 0, 2),
    Sketcher.Constraint("Angle", 1, Q("-82.5 deg")),
    Sketcher.Constraint("Distance", 3, 1.375),
    Sketcher.Constraint("DistanceY", 1, 2, 3, 2, 2.647598),
    Sketcher.Constraint("Distance", 0, 7.466449),
    Sketcher.Constraint("DistanceX", 0, 2, -1, 1, 46.40823),
    Sketcher.Constraint("DistanceY", 0, 2, -1, 1, 5.10029),
])
pad19 = body19.newObject("PartDesign::Pad", "Pad018")
pad19.Profile = sketch19
pad19.Length = 30
body20 = doc.addObject("PartDesign::Body", "Body019")

sketch20 = body20.newObject("Sketcher::SketchObject", "Sketch019")
sketch20.AttachmentSupport = (doc.getObject("XY_Plane019"), [""])
sketch20.MapMode = "FlatFace"
sketch20.AttachmentOffset = App.Placement(V(0, 0, -15), App.Rotation())
sketch20.addGeometry([
    Part.LineSegment(V(-45.7, -11.2, 0), V(-51.1, -12.4, 0)),
    Part.LineSegment(V(-51.1, -12.4, 0), V(-50.5, -14.8, 0)),
    Part.LineSegment(V(-50.5, -14.8, 0), V(-45.2, -13.1, 0)),
    Part.LineSegment(V(-45.2, -13.1, 0), V(-45.7, -11.2, 0)),
], False)
sketch20.addConstraint([
    Sketcher.Constraint("Coincident", 0, 2, 1, 1),
    Sketcher.Constraint("Coincident", 1, 2, 2, 1),
    Sketcher.Constraint("Coincident", 2, 2, 3, 1),
    Sketcher.Constraint("Coincident", 3, 2, 0, 1),
    Sketcher.Constraint("Parallel", 1, 3),
    Sketcher.Constraint("Equal", 0, 2),
    Sketcher.Constraint("Angle", 1, Q("-75 deg")),
    Sketcher.Constraint("Distance", 1, 2.475),
    Sketcher.Constraint("DistanceX", 1, 2, -1, 1, 50.472549),
    Sketcher.Constraint("DistanceY", 2, 2, -1, 1, 13.148381),
    Sketcher.Constraint("DistanceY", 3, 2, -1, 1, 11.21492),
    Sketcher.Constraint("DistanceY", 1, 2, 2, 2, 1.656852),
])
pad20 = body20.newObject("PartDesign::Pad", "Pad019")
pad20.Profile = sketch20
pad20.Length = 30
body21 = doc.addObject("PartDesign::Body", "Body020")

sketch21 = body21.newObject("Sketcher::SketchObject", "Sketch020")
sketch21.AttachmentSupport = (doc.getObject("XY_Plane020"), [""])
sketch21.MapMode = "FlatFace"
sketch21.AttachmentOffset = App.Placement(V(0, 0, -15), App.Rotation())
sketch21.addGeometry([
    Part.LineSegment(V(-28.2, -27.2, 0), V(-33.7, -32.3, 0)),
    Part.LineSegment(V(-33.7, -32.3, 0), V(-32.3, -33.7, 0)),
    Part.LineSegment(V(-32.3, -33.7, 0), V(-27.2, -28.2, 0)),
    Part.LineSegment(V(-27.2, -28.2, 0), V(-28.2, -27.2, 0)),
], False)
sketch21.addConstraint([
    Sketcher.Constraint("Coincident", 0, 2, 1, 1),
    Sketcher.Constraint("Coincident", 1, 2, 2, 1),
    Sketcher.Constraint("Coincident", 2, 2, 3, 1),
    Sketcher.Constraint("Coincident", 3, 2, 0, 1),
    Sketcher.Constraint("Parallel", 1, 3),
    Sketcher.Constraint("Equal", 0, 2),
    Sketcher.Constraint("Angle", 1, Q("-45 deg")),
    Sketcher.Constraint("Distance", 3, 1.375),
    Sketcher.Constraint("Distance", 0, 7.466449),
    Sketcher.Constraint("DistanceY", 2, 2, -1, 1, 28.216779),
    Sketcher.Constraint("DistanceX", 3, 2, -1, 1, 28.216779),
    Sketcher.Constraint("Distance", 1, 2.001667),
])
pad21 = body21.newObject("PartDesign::Pad", "Pad020")
pad21.Profile = sketch21
pad21.Length = 30
body22 = doc.addObject("PartDesign::Body", "Body021")

sketch22 = body22.newObject("Sketcher::SketchObject", "Sketch021")
sketch22.AttachmentSupport = (doc.getObject("XY_Plane021"), [""])
sketch22.MapMode = "FlatFace"
sketch22.AttachmentOffset = App.Placement(V(0, 0, -15), App.Rotation())
sketch22.addGeometry([
    Part.LineSegment(V(-29.4, -36.7, 0), V(-33, -41, 0)),
    Part.LineSegment(V(-33, -41, 0), V(-31, -42.5, 0)),
    Part.LineSegment(V(-31, -42.5, 0), V(-27.9, -37.9, 0)),
    Part.LineSegment(V(-27.9, -37.9, 0), V(-29.4, -36.7, 0)),
], False)
sketch22.addConstraint([
    Sketcher.Constraint("Coincident", 0, 2, 1, 1),
    Sketcher.Constraint("Coincident", 1, 2, 2, 1),
    Sketcher.Constraint("Coincident", 2, 2, 3, 1),
    Sketcher.Constraint("Coincident", 3, 2, 0, 1),
    Sketcher.Constraint("Parallel", 1, 3),
    Sketcher.Constraint("Equal", 0, 2),
    Sketcher.Constraint("Angle", 1, Q("-37.5 deg")),
    Sketcher.Constraint("Distance", 1, 2.475),
    Sketcher.Constraint("DistanceY", 1, 2, 3, 2, 5.740598),
    Sketcher.Constraint("DistanceX", 0, 2, -1, 1, 32.99326),
    Sketcher.Constraint("DistanceY", 2, 2, -1, 1, 37.949462),
    Sketcher.Constraint("DistanceY", 1, 2, 2, 2, 4.522061),
])
pad22 = body22.newObject("PartDesign::Pad", "Pad021")
pad22.Profile = sketch22
pad22.Length = 30
body23 = doc.addObject("PartDesign::Body", "Body022")

sketch23 = body23.newObject("Sketcher::SketchObject", "Sketch022")
sketch23.AttachmentSupport = (doc.getObject("XY_Plane022"), [""])
sketch23.MapMode = "FlatFace"
sketch23.AttachmentOffset = App.Placement(V(0, 0, -15), App.Rotation())
sketch23.addGeometry([
    Part.LineSegment(V(-24.4, -30.7, 0), V(-29.2, -36.4, 0)),
    Part.LineSegment(V(-29.2, -36.4, 0), V(-27.6, -37.6, 0)),
    Part.LineSegment(V(-27.6, -37.6, 0), V(-23.3, -31.5, 0)),
    Part.LineSegment(V(-23.3, -31.5, 0), V(-24.4, -30.7, 0)),
], False)
sketch23.addConstraint([
    Sketcher.Constraint("Coincident", 0, 2, 1, 1),
    Sketcher.Constraint("Coincident", 1, 2, 2, 1),
    Sketcher.Constraint("Coincident", 2, 2, 3, 1),
    Sketcher.Constraint("Coincident", 3, 2, 0, 1),
    Sketcher.Constraint("Parallel", 1, 3),
    Sketcher.Constraint("Equal", 0, 2),
    Sketcher.Constraint("Angle", 1, Q("-37.5 deg")),
    Sketcher.Constraint("Distance", 3, 1.375),
    Sketcher.Constraint("DistanceX", 1, 2, 2, 2, 4.292698),
    Sketcher.Constraint("Distance", 0, 7.466449),
    Sketcher.Constraint("DistanceY", 1, 2, -1, 1, 37.640562),
    Sketcher.Constraint("DistanceX", 3, 2, -1, 1, 24.419259),
])
pad23 = body23.newObject("PartDesign::Pad", "Pad022")
pad23.Profile = sketch23
pad23.Length = 30
body24 = doc.addObject("PartDesign::Body", "Body023")

sketch24 = body24.newObject("Sketcher::SketchObject", "Sketch023")
sketch24.AttachmentSupport = (doc.getObject("XY_Plane023"), [""])
sketch24.MapMode = "FlatFace"
sketch24.AttachmentOffset = App.Placement(V(0, 0, -15), App.Rotation())
sketch24.addGeometry([
    Part.LineSegment(V(-24.4, -40.3, 0), V(-27.4, -44.9, 0)),
    Part.LineSegment(V(-27.4, -44.9, 0), V(-25.2, -46.2, 0)),
    Part.LineSegment(V(-25.2, -46.2, 0), V(-22.7, -41.3, 0)),
    Part.LineSegment(V(-22.7, -41.3, 0), V(-24.4, -40.3, 0)),
], False)
sketch24.addConstraint([
    Sketcher.Constraint("Coincident", 0, 2, 1, 1),
    Sketcher.Constraint("Coincident", 1, 2, 2, 1),
    Sketcher.Constraint("Coincident", 2, 2, 3, 1),
    Sketcher.Constraint("Coincident", 3, 2, 0, 1),
    Sketcher.Constraint("Parallel", 1, 3),
    Sketcher.Constraint("Equal", 0, 2),
    Sketcher.Constraint("Angle", 1, Q("-30 deg")),
    Sketcher.Constraint("Distance", 1, 2.475),
    Sketcher.Constraint("DistanceX", 1, 2, -1, 1, 25.220601),
    Sketcher.Constraint("DistanceX", 3, 2, -1, 1, 24.399889),
    Sketcher.Constraint("DistanceY", 3, 2, -1, 1, 40.26018),
    Sketcher.Constraint("DistanceY", 1, 2, 2, 2, 4.897349),
])
pad24 = body24.newObject("PartDesign::Pad", "Pad023")
pad24.Profile = sketch24
pad24.Length = 30
body25 = doc.addObject("PartDesign::Body", "Body024")

sketch25 = body25.newObject("Sketcher::SketchObject", "Sketch024")
sketch25.AttachmentSupport = (doc.getObject("XY_Plane024"), [""])
sketch25.MapMode = "FlatFace"
sketch25.AttachmentOffset = App.Placement(V(0, 0, -15), App.Rotation())
sketch25.addGeometry([
    Part.LineSegment(V(-0.7, -39.2, 0), V(-1, -46.7, 0)),
    Part.LineSegment(V(-1, -46.7, 0), V(1, -46.7, 0)),
    Part.LineSegment(V(1, -46.7, 0), V(0.7, -39.2, 0)),
    Part.LineSegment(V(0.7, -39.2, 0), V(-0.7, -39.2, 0)),
], False)
sketch25.addConstraint([
    Sketcher.Constraint("Coincident", 0, 2, 1, 1),
    Sketcher.Constraint("Coincident", 1, 2, 2, 1),
    Sketcher.Constraint("Coincident", 2, 2, 3, 1),
    Sketcher.Constraint("Coincident", 3, 2, 0, 1),
    Sketcher.Constraint("Horizontal", 1),
    Sketcher.Constraint("Horizontal", 3),
    Sketcher.Constraint("Equal", 0, 2),
    Sketcher.Constraint("DistanceX", 3, 2, 3, 1, 1.375),
    Sketcher.Constraint("DistanceX", -1, 1, 2, 2, 0.6875),
    Sketcher.Constraint("Distance", 0, 7.466449),
    Sketcher.Constraint("DistanceX", 1, 1, 1, 2, 2.001667),
    Sketcher.Constraint("DistanceY", 2, 2, -1, 1, 39.217051),
])
pad25 = body25.newObject("PartDesign::Pad", "Pad024")
pad25.Profile = sketch25
pad25.Length = 30
body26 = doc.addObject("PartDesign::Body", "Body025")

sketch26 = body26.newObject("Sketcher::SketchObject", "Sketch025")
sketch26.AttachmentSupport = (doc.getObject("XY_Plane025"), [""])
sketch26.MapMode = "FlatFace"
sketch26.AttachmentOffset = App.Placement(V(0, 0, -15), App.Rotation())
sketch26.addGeometry([
    Part.LineSegment(V(5.2, -46.8, 0), V(5.6, -52.3, 0)),
    Part.LineSegment(V(5.6, -52.3, 0), V(8.1, -52, 0)),
    Part.LineSegment(V(8.1, -52, 0), V(7.1, -46.5, 0)),
    Part.LineSegment(V(7.1, -46.5, 0), V(5.2, -46.8, 0)),
], False)
sketch26.addConstraint([
    Sketcher.Constraint("Coincident", 0, 2, 1, 1),
    Sketcher.Constraint("Coincident", 1, 2, 2, 1),
    Sketcher.Constraint("Coincident", 2, 2, 3, 1),
    Sketcher.Constraint("Coincident", 3, 2, 0, 1),
    Sketcher.Constraint("Parallel", 1, 3),
    Sketcher.Constraint("Equal", 0, 2),
    Sketcher.Constraint("Angle", 1, Q("7.5 deg")),
    Sketcher.Constraint("Distance", 1, 2.475),
    Sketcher.Constraint("DistanceY", 1, 2, -1, 1, 51.973221),
    Sketcher.Constraint("DistanceY", 2, 2, -1, 1, 46.53299),
    Sketcher.Constraint("DistanceX", -1, 1, 3, 2, 5.151112),
    Sketcher.Constraint("DistanceY", 3, 2, -1, 1, 46.79426),
])
pad26 = body26.newObject("PartDesign::Pad", "Pad025")
pad26.Profile = sketch26
pad26.Length = 30
body27 = doc.addObject("PartDesign::Body", "Body026")

sketch27 = body27.newObject("Sketcher::SketchObject", "Sketch026")
sketch27.AttachmentSupport = (doc.getObject("XY_Plane026"), [""])
sketch27.MapMode = "FlatFace"
sketch27.AttachmentOffset = App.Placement(V(0, 0, -15), App.Rotation())
sketch27.addGeometry([
    Part.LineSegment(V(4.4, -39, 0), V(5.1, -46.4, 0)),
    Part.LineSegment(V(5.1, -46.4, 0), V(7.1, -46.1, 0)),
    Part.LineSegment(V(7.1, -46.1, 0), V(5.8, -38.8, 0)),
    Part.LineSegment(V(5.8, -38.8, 0), V(4.4, -39, 0)),
], False)
sketch27.addConstraint([
    Sketcher.Constraint("Coincident", 0, 2, 1, 1),
    Sketcher.Constraint("Coincident", 1, 2, 2, 1),
    Sketcher.Constraint("Coincident", 2, 2, 3, 1),
    Sketcher.Constraint("Coincident", 3, 2, 0, 1),
    Sketcher.Constraint("Parallel", 1, 3),
    Sketcher.Constraint("Equal", 0, 2),
    Sketcher.Constraint("Angle", 1, Q("7.5 deg")),
    Sketcher.Constraint("Distance", 3, 1.375),
    Sketcher.Constraint("DistanceX", 3, 2, 1, 2, 2.647598),
    Sketcher.Constraint("Distance", 0, 7.466449),
    Sketcher.Constraint("DistanceX", -1, 1, 0, 2, 5.10029),
    Sketcher.Constraint("DistanceY", 0, 2, -1, 1, 46.40823),
])
pad27 = body27.newObject("PartDesign::Pad", "Pad026")
pad27.Profile = sketch27
pad27.Length = 30
body28 = doc.addObject("PartDesign::Body", "Body027")

sketch28 = body28.newObject("Sketcher::SketchObject", "Sketch027")
sketch28.AttachmentSupport = (doc.getObject("XY_Plane027"), [""])
sketch28.MapMode = "FlatFace"
sketch28.AttachmentOffset = App.Placement(V(0, 0, -15), App.Rotation())
sketch28.addGeometry([
    Part.LineSegment(V(11.2, -45.7, 0), V(12.4, -51.1, 0)),
    Part.LineSegment(V(12.4, -51.1, 0), V(14.8, -50.5, 0)),
    Part.LineSegment(V(14.8, -50.5, 0), V(13.1, -45.2, 0)),
    Part.LineSegment(V(13.1, -45.2, 0), V(11.2, -45.7, 0)),
], False)
sketch28.addConstraint([
    Sketcher.Constraint("Coincident", 0, 2, 1, 1),
    Sketcher.Constraint("Coincident", 1, 2, 2, 1),
    Sketcher.Constraint("Coincident", 2, 2, 3, 1),
    Sketcher.Constraint("Coincident", 3, 2, 0, 1),
    Sketcher.Constraint("Parallel", 1, 3),
    Sketcher.Constraint("Equal", 0, 2),
    Sketcher.Constraint("Angle", 1, Q("15 deg")),
    Sketcher.Constraint("Distance", 1, 2.475),
    Sketcher.Constraint("DistanceY", 1, 2, -1, 1, 50.472549),
    Sketcher.Constraint("DistanceX", -1, 1, 2, 2, 13.148381),
    Sketcher.Constraint("DistanceX", -1, 1, 3, 2, 11.21492),
    Sketcher.Constraint("DistanceX", 2, 2, 1, 2, 1.656852),
])
pad28 = body28.newObject("PartDesign::Pad", "Pad027")
pad28.Profile = sketch28
pad28.Length = 30
body29 = doc.addObject("PartDesign::Body", "Body028")

sketch29 = body29.newObject("Sketcher::SketchObject", "Sketch028")
sketch29.AttachmentSupport = (doc.getObject("XY_Plane028"), [""])
sketch29.MapMode = "FlatFace"
sketch29.AttachmentOffset = App.Placement(V(0, 0, -15), App.Rotation())
sketch29.addGeometry([
    Part.LineSegment(V(27.2, -28.2, 0), V(32.3, -33.7, 0)),
    Part.LineSegment(V(32.3, -33.7, 0), V(33.7, -32.3, 0)),
    Part.LineSegment(V(33.7, -32.3, 0), V(28.2, -27.2, 0)),
    Part.LineSegment(V(28.2, -27.2, 0), V(27.2, -28.2, 0)),
], False)
sketch29.addConstraint([
    Sketcher.Constraint("Coincident", 0, 2, 1, 1),
    Sketcher.Constraint("Coincident", 1, 2, 2, 1),
    Sketcher.Constraint("Coincident", 2, 2, 3, 1),
    Sketcher.Constraint("Coincident", 3, 2, 0, 1),
    Sketcher.Constraint("Parallel", 1, 3),
    Sketcher.Constraint("Equal", 0, 2),
    Sketcher.Constraint("Angle", 1, Q("45 deg")),
    Sketcher.Constraint("Distance", 3, 1.375),
    Sketcher.Constraint("Distance", 0, 7.466449),
    Sketcher.Constraint("DistanceX", -1, 1, 2, 2, 28.216779),
    Sketcher.Constraint("DistanceY", 3, 2, -1, 1, 28.216779),
    Sketcher.Constraint("Distance", 1, 2.001667),
])
pad29 = body29.newObject("PartDesign::Pad", "Pad028")
pad29.Profile = sketch29
pad29.Length = 30
body30 = doc.addObject("PartDesign::Body", "Body029")

sketch30 = body30.newObject("Sketcher::SketchObject", "Sketch029")
sketch30.AttachmentSupport = (doc.getObject("XY_Plane029"), [""])
sketch30.MapMode = "FlatFace"
sketch30.AttachmentOffset = App.Placement(V(0, 0, -15), App.Rotation())
sketch30.addGeometry([
    Part.LineSegment(V(36.7, -29.4, 0), V(41, -33, 0)),
    Part.LineSegment(V(41, -33, 0), V(42.5, -31, 0)),
    Part.LineSegment(V(42.5, -31, 0), V(37.9, -27.9, 0)),
    Part.LineSegment(V(37.9, -27.9, 0), V(36.7, -29.4, 0)),
], False)
sketch30.addConstraint([
    Sketcher.Constraint("Coincident", 0, 2, 1, 1),
    Sketcher.Constraint("Coincident", 1, 2, 2, 1),
    Sketcher.Constraint("Coincident", 2, 2, 3, 1),
    Sketcher.Constraint("Coincident", 3, 2, 0, 1),
    Sketcher.Constraint("Parallel", 1, 3),
    Sketcher.Constraint("Equal", 0, 2),
    Sketcher.Constraint("Angle", 1, Q("52.5 deg")),
    Sketcher.Constraint("Distance", 1, 2.475),
    Sketcher.Constraint("DistanceX", 3, 2, 1, 2, 5.740598),
    Sketcher.Constraint("DistanceY", 0, 2, -1, 1, 32.99326),
    Sketcher.Constraint("DistanceX", -1, 1, 2, 2, 37.949462),
    Sketcher.Constraint("DistanceX", 2, 2, 1, 2, 4.522061),
])
pad30 = body30.newObject("PartDesign::Pad", "Pad029")
pad30.Profile = sketch30
pad30.Length = 30
body31 = doc.addObject("PartDesign::Body", "Body030")

sketch31 = body31.newObject("Sketcher::SketchObject", "Sketch030")
sketch31.AttachmentSupport = (doc.getObject("XY_Plane030"), [""])
sketch31.MapMode = "FlatFace"
sketch31.AttachmentOffset = App.Placement(V(0, 0, -15), App.Rotation())
sketch31.addGeometry([
    Part.LineSegment(V(30.7, -24.4, 0), V(36.4, -29.2, 0)),
    Part.LineSegment(V(36.4, -29.2, 0), V(37.6, -27.6, 0)),
    Part.LineSegment(V(37.6, -27.6, 0), V(31.5, -23.3, 0)),
    Part.LineSegment(V(31.5, -23.3, 0), V(30.7, -24.4, 0)),
], False)
sketch31.addConstraint([
    Sketcher.Constraint("Coincident", 0, 2, 1, 1),
    Sketcher.Constraint("Coincident", 1, 2, 2, 1),
    Sketcher.Constraint("Coincident", 2, 2, 3, 1),
    Sketcher.Constraint("Coincident", 3, 2, 0, 1),
    Sketcher.Constraint("Parallel", 1, 3),
    Sketcher.Constraint("Equal", 0, 2),
    Sketcher.Constraint("Angle", 1, Q("52.5 deg")),
    Sketcher.Constraint("Distance", 3, 1.375),
    Sketcher.Constraint("DistanceY", 1, 2, 2, 2, 4.292698),
    Sketcher.Constraint("Distance", 0, 7.466449),
    Sketcher.Constraint("DistanceX", -1, 1, 1, 2, 37.640562),
    Sketcher.Constraint("DistanceY", 3, 2, -1, 1, 24.419259),
])
pad31 = body31.newObject("PartDesign::Pad", "Pad030")
pad31.Profile = sketch31
pad31.Length = 30
body32 = doc.addObject("PartDesign::Body", "Body031")

sketch32 = body32.newObject("Sketcher::SketchObject", "Sketch031")
sketch32.AttachmentSupport = (doc.getObject("XY_Plane031"), [""])
sketch32.MapMode = "FlatFace"
sketch32.AttachmentOffset = App.Placement(V(0, 0, -15), App.Rotation())
sketch32.addGeometry([
    Part.LineSegment(V(40.3, -24.4, 0), V(44.9, -27.4, 0)),
    Part.LineSegment(V(44.9, -27.4, 0), V(46.2, -25.2, 0)),
    Part.LineSegment(V(46.2, -25.2, 0), V(41.3, -22.7, 0)),
    Part.LineSegment(V(41.3, -22.7, 0), V(40.3, -24.4, 0)),
], False)
sketch32.addConstraint([
    Sketcher.Constraint("Coincident", 0, 2, 1, 1),
    Sketcher.Constraint("Coincident", 1, 2, 2, 1),
    Sketcher.Constraint("Coincident", 2, 2, 3, 1),
    Sketcher.Constraint("Coincident", 3, 2, 0, 1),
    Sketcher.Constraint("Parallel", 1, 3),
    Sketcher.Constraint("Equal", 0, 2),
    Sketcher.Constraint("Angle", 1, Q("60 deg")),
    Sketcher.Constraint("Distance", 1, 2.475),
    Sketcher.Constraint("DistanceY", 1, 2, -1, 1, 25.220601),
    Sketcher.Constraint("DistanceX", -1, 1, 3, 2, 40.26018),
    Sketcher.Constraint("DistanceY", 3, 2, -1, 1, 24.399889),
    Sketcher.Constraint("DistanceX", 2, 2, 1, 2, 4.897349),
])
pad32 = body32.newObject("PartDesign::Pad", "Pad031")
pad32.Profile = sketch32
pad32.Length = 30

doc.recompute()
